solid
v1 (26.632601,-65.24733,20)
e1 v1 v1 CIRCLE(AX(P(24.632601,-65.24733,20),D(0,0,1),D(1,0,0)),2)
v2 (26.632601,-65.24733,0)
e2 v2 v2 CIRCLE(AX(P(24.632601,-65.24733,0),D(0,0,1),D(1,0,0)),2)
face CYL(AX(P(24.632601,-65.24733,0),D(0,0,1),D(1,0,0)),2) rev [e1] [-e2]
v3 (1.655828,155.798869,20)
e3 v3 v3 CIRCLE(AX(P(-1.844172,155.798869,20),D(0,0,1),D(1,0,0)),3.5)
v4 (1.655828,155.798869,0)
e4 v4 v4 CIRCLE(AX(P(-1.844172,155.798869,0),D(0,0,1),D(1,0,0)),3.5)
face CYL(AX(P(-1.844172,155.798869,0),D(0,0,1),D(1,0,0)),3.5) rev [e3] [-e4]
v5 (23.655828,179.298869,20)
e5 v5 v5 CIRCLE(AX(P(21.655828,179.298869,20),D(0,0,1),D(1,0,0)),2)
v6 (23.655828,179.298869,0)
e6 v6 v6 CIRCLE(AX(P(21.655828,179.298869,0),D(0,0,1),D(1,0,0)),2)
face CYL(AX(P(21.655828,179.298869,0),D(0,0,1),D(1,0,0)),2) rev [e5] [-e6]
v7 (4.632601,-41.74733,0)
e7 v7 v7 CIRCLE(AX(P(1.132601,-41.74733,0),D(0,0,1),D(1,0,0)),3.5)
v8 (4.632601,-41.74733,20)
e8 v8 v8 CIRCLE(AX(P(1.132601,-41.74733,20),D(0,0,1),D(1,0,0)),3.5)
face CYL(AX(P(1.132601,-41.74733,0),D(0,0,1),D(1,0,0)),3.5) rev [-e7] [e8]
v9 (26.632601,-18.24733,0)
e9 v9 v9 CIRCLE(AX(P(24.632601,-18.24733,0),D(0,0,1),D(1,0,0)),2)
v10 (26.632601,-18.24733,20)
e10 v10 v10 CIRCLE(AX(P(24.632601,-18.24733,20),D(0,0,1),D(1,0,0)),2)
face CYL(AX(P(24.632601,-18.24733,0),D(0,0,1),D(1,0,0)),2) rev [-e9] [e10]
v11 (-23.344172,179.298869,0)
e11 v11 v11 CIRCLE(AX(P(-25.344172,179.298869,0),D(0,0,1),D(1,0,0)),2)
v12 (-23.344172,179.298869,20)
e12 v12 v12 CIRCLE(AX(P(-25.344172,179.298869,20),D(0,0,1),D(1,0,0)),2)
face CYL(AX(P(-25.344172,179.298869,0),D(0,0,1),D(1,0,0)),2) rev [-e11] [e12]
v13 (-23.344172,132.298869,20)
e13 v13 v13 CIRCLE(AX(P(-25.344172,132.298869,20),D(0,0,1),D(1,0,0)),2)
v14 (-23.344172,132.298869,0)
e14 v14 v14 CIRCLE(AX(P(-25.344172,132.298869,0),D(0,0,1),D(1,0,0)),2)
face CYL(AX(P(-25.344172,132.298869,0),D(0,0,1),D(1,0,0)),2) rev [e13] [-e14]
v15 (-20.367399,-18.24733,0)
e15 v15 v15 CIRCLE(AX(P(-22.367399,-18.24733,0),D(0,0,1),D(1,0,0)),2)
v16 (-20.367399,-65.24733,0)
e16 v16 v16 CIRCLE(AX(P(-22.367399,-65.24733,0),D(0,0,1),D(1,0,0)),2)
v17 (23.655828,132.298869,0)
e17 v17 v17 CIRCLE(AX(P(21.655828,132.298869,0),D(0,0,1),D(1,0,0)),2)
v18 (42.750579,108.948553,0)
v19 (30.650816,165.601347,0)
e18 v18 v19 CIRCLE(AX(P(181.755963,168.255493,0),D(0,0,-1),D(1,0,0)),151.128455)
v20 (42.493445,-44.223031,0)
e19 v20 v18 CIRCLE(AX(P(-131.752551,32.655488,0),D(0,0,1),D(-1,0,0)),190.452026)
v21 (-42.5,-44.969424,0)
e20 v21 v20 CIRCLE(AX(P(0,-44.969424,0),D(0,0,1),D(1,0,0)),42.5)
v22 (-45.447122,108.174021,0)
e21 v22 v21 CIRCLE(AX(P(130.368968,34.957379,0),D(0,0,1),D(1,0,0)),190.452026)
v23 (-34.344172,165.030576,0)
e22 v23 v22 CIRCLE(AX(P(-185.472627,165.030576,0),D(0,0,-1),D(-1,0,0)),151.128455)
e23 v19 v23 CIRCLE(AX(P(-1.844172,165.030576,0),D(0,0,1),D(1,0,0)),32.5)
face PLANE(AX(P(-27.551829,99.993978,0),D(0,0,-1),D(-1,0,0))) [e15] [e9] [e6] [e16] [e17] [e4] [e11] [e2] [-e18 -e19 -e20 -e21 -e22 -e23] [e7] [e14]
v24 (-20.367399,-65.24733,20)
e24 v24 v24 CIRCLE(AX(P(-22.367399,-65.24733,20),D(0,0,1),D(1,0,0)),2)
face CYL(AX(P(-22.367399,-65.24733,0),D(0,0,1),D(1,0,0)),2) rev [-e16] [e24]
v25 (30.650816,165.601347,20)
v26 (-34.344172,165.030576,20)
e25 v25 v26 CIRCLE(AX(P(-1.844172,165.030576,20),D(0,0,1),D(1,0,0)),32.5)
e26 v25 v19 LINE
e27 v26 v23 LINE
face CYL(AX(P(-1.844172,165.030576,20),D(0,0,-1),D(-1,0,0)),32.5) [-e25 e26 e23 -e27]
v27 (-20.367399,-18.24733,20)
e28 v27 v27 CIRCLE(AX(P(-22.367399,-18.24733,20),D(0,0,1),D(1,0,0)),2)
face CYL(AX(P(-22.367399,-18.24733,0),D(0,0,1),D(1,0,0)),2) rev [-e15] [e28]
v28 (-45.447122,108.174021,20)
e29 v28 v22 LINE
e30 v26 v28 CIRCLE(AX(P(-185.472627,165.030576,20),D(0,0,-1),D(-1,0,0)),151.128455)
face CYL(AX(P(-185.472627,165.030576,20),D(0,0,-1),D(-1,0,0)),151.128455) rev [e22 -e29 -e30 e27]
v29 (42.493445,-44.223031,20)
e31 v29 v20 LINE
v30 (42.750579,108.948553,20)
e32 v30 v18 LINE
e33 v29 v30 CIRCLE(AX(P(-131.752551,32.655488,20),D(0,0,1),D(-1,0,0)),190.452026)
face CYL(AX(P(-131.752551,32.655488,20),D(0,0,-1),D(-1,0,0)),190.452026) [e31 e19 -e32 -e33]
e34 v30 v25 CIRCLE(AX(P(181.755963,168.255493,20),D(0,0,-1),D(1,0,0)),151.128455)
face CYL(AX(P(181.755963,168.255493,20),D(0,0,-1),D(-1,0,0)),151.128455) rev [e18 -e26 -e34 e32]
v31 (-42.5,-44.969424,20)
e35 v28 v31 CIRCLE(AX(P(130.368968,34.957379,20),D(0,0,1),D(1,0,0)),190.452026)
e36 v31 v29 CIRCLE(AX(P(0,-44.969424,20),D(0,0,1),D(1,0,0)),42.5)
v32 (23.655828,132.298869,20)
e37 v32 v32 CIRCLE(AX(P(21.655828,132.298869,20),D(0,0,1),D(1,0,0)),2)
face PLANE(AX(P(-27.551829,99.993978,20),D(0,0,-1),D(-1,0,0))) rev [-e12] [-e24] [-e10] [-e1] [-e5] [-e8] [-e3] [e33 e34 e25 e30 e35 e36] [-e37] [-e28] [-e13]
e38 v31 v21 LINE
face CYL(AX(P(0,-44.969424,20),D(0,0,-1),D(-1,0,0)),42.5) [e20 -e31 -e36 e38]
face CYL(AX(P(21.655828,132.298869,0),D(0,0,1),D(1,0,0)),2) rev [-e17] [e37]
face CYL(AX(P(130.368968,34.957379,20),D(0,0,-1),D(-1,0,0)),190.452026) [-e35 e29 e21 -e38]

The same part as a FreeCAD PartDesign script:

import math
import FreeCAD as App
import Part
import Sketcher

V = App.Vector

doc = App.newDocument("Part")
body = doc.addObject("PartDesign::Body", "Body")

# Sketch on XY plane
sketch1 = body.newObject("Sketcher::SketchObject", "Sketch")
sketch1.AttachmentSupport = (doc.getObject("XY_Plane"), [""])
sketch1.MapMode = "FlatFace"
sketch1.addGeometry(Part.ArcOfCircle(Part.Circle(V(0, -44.969424, 0), V(0, 0, 1), 42.5), math.radians(180), math.radians(361.006291)), False)
sketch1.addGeometry(Part.ArcOfCircle(Part.Circle(V(-131.752551, 32.655488, 0), V(0, 0, 1), 190.452026), math.radians(-23.807398), math.radians(23.615031)), False)
sketch1.addGeometry(Part.ArcOfCircle(Part.Circle(V(181.755963, 168.255493, 0), V(0, 0, 1), 151.128455), math.radians(-178.993709), math.radians(-156.894379)), False)
sketch1.addGeometry(Part.ArcOfCircle(Part.Circle(V(-1.844172, 165.030576, 0), V(0, 0, 1), 32.5), math.radians(1.006291), math.radians(180)), False)
sketch1.addGeometry(Part.ArcOfCircle(Part.Circle(V(-185.472627, 165.030576, 0), V(0, 0, 1), 151.128455), math.radians(-22.09933), math.radians(0)), False)
sketch1.addGeometry(Part.ArcOfCircle(Part.Circle(V(130.368968, 34.957379, 0), V(0, 0, 1), 190.452026), math.radians(157.39126), math.radians(204.813689)), False)
sketch1.addConstraint(Sketcher.Constraint("Coincident", 0, 2, 1, 1))
sketch1.addConstraint(Sketcher.Constraint("Coincident", 1, 2, 2, 2))
sketch1.addConstraint(Sketcher.Constraint("Coincident", 2, 1, 3, 1))
sketch1.addConstraint(Sketcher.Constraint("Coincident", 3, 2, 4, 2))
sketch1.addConstraint(Sketcher.Constraint("Coincident", 4, 1, 5, 1))
sketch1.addConstraint(Sketcher.Constraint("Coincident", 5, 2, 0, 1))
sketch1.addConstraint(Sketcher.Constraint("PointOnObject", 0, 3, -2))
sketch1.addConstraint(Sketcher.Constraint("Radius", 0, 42.5))
sketch1.addConstraint(Sketcher.Constraint("Radius", 3, 32.5))
sketch1.addConstraint(Sketcher.Constraint("DistanceY", 0, 3, 3, 3, 210.0))
sketch1.addConstraint(Sketcher.Constraint("DistanceY", 0, 3, 4, 3, 210.0))
sketch1.addConstraint(Sketcher.Constraint("Radius", 1, 190.452026))
sketch1.addConstraint(Sketcher.Constraint("Radius", 2, 151.128455))
sketch1.addConstraint(Sketcher.Constraint("Radius", 4, 151.128455))
sketch1.addConstraint(Sketcher.Constraint("Radius", 5, 190.452026))
sketch1.addConstraint(Sketcher.Constraint("DistanceX", 4, 1, 1, 2, 88.197701))
sketch1.addConstraint(Sketcher.Constraint("DistanceX", 1, 3, -1, 1, 131.752551))
sketch1.addConstraint(Sketcher.Constraint("DistanceY", -1, 1, 1, 3, 32.655488))
sketch1.addConstraint(Sketcher.Constraint("DistanceX", 3, 3, -1, 1, 1.844172))
sketch1.addConstraint(Sketcher.Constraint("DistanceX", -1, 1, 5, 3, 130.368968))
sketch1.addConstraint(Sketcher.Constraint("DistanceY", -1, 1, 5, 3, 34.957379))
sketch1.addConstraint(Sketcher.Constraint("DistanceX", -1, 1, 1, 2, 42.750579))
sketch1.addConstraint(Sketcher.Constraint("DistanceY", 3, 3, 2, 1, 0.570771))
sketch1.addConstraint(Sketcher.Constraint("DistanceY", 3, 2, 2, 1, 0.570771))
pad1 = body.newObject("PartDesign::Pad", "Pad")
pad1.Profile = sketch1
pad1.Length = 20

# Sketch on XY plane
sketch2 = body.newObject("Sketcher::SketchObject", "Sketch001")
sketch2.AttachmentSupport = (doc.getObject("XY_Plane"), [""])
sketch2.MapMode = "FlatFace"
sketch2.AttachmentOffset = App.Placement(V(0, 0, 20), App.Rotation())
sketch2.addGeometry(Part.Circle(V(-1.8, 155.8, 0), V(0, 0, 1), 3.5), False)
sketch2.addGeometry(Part.Circle(V(21.7, 179.3, 0), V(0, 0, 1), 2), False)
sketch2.addGeometry(Part.Circle(V(-25.3, 179.3, 0), V(0, 0, 1), 2), False)
sketch2.addGeometry(Part.Circle(V(21.7, 132.3, 0), V(0, 0, 1), 2), False)
sketch2.addGeometry(Part.Circle(V(-25.3, 132.3, 0), V(0, 0, 1), 2), False)
sketch2.addConstraint(Sketcher.Constraint("Equal", 1, 2))
sketch2.addConstraint(Sketcher.Constraint("Equal", 2, 3))
sketch2.addConstraint(Sketcher.Constraint("Equal", 3, 4))
sketch2.addConstraint(Sketcher.Constraint("Horizontal", 1, 3, 2, 3))
sketch2.addConstraint(Sketcher.Constraint("Horizontal", 3, 3, 4, 3))
sketch2.addConstraint(Sketcher.Constraint("Vertical", 1, 3, 3, 3))
sketch2.addConstraint(Sketcher.Constraint("Vertical", 2, 3, 4, 3))
sketch2.addConstraint(Sketcher.Constraint("Diameter", 0, 7.0))
sketch2.addConstraint(Sketcher.Constraint("Diameter", 1, 4.0))
sketch2.addConstraint(Sketcher.Constraint("DistanceX", 2, 3, 1, 3, 47.0))
sketch2.addConstraint(Sketcher.Constraint("DistanceY", 3, 3, 1, 3, 47.0))
sketch2.addConstraint(Sketcher.Constraint("DistanceX", 0, 3, 1, 3, 23.5))
sketch2.addConstraint(Sketcher.Constraint("DistanceY", 0, 3, 1, 3, 23.5))
sketch2.addConstraint(Sketcher.Constraint("DistanceX", 0, 3, -1, 1, 1.844172))
sketch2.addConstraint(Sketcher.Constraint("DistanceY", -1, 1, 0, 3, 155.798869))
pocket1 = body.newObject("PartDesign::Pocket", "Pocket")
pocket1.Profile = sketch2
pocket1.Type = "ThroughAll"

# Sketch on XY plane
sketch3 = body.newObject("Sketcher::SketchObject", "Sketch002")
sketch3.AttachmentSupport = (doc.getObject("XY_Plane"), [""])
sketch3.MapMode = "FlatFace"
sketch3.AttachmentOffset = App.Placement(V(0, 0, 20), App.Rotation())
sketch3.addGeometry(Part.Circle(V(1.1, -41.7, 0), V(0, 0, 1), 3.5), False)
sketch3.addGeometry(Part.Circle(V(24.6, -18.2, 0), V(0, 0, 1), 2), False)
sketch3.addGeometry(Part.Circle(V(-22.4, -18.2, 0), V(0, 0, 1), 2), False)
sketch3.addGeometry(Part.Circle(V(24.6, -65.2, 0), V(0, 0, 1), 2), False)
sketch3.addGeometry(Part.Circle(V(-22.4, -65.2, 0), V(0, 0, 1), 2), False)
sketch3.addConstraint(Sketcher.Constraint("Equal", 1, 2))
sketch3.addConstraint(Sketcher.Constraint("Equal", 2, 3))
sketch3.addConstraint(Sketcher.Constraint("Equal", 3, 4))
sketch3.addConstraint(Sketcher.Constraint("Horizontal", 1, 3, 2, 3))
sketch3.addConstraint(Sketcher.Constraint("Horizontal", 3, 3, 4, 3))
sketch3.addConstraint(Sketcher.Constraint("Vertical", 1, 3, 3, 3))
sketch3.addConstraint(Sketcher.Constraint("Vertical", 2, 3, 4, 3))
sketch3.addConstraint(Sketcher.Constraint("Diameter", 0, 7.0))
sketch3.addConstraint(Sketcher.Constraint("Diameter", 1, 4.0))
sketch3.addConstraint(Sketcher.Constraint("DistanceX", 2, 3, 1, 3, 47.0))
sketch3.addConstraint(Sketcher.Constraint("DistanceY", 3, 3, 1, 3, 47.0))
sketch3.addConstraint(Sketcher.Constraint("DistanceX", 0, 3, 1, 3, 23.5))
sketch3.addConstraint(Sketcher.Constraint("DistanceY", 0, 3, 1, 3, 23.5))
sketch3.addConstraint(Sketcher.Constraint("DistanceX", -1, 1, 0, 3, 1.132601))
sketch3.addConstraint(Sketcher.Constraint("DistanceY", 0, 3, -1, 1, 41.74733))
pocket2 = body.newObject("PartDesign::Pocket", "Pocket001")
pocket2.Profile = sketch3
pocket2.Type = "ThroughAll"

doc.recompute()
